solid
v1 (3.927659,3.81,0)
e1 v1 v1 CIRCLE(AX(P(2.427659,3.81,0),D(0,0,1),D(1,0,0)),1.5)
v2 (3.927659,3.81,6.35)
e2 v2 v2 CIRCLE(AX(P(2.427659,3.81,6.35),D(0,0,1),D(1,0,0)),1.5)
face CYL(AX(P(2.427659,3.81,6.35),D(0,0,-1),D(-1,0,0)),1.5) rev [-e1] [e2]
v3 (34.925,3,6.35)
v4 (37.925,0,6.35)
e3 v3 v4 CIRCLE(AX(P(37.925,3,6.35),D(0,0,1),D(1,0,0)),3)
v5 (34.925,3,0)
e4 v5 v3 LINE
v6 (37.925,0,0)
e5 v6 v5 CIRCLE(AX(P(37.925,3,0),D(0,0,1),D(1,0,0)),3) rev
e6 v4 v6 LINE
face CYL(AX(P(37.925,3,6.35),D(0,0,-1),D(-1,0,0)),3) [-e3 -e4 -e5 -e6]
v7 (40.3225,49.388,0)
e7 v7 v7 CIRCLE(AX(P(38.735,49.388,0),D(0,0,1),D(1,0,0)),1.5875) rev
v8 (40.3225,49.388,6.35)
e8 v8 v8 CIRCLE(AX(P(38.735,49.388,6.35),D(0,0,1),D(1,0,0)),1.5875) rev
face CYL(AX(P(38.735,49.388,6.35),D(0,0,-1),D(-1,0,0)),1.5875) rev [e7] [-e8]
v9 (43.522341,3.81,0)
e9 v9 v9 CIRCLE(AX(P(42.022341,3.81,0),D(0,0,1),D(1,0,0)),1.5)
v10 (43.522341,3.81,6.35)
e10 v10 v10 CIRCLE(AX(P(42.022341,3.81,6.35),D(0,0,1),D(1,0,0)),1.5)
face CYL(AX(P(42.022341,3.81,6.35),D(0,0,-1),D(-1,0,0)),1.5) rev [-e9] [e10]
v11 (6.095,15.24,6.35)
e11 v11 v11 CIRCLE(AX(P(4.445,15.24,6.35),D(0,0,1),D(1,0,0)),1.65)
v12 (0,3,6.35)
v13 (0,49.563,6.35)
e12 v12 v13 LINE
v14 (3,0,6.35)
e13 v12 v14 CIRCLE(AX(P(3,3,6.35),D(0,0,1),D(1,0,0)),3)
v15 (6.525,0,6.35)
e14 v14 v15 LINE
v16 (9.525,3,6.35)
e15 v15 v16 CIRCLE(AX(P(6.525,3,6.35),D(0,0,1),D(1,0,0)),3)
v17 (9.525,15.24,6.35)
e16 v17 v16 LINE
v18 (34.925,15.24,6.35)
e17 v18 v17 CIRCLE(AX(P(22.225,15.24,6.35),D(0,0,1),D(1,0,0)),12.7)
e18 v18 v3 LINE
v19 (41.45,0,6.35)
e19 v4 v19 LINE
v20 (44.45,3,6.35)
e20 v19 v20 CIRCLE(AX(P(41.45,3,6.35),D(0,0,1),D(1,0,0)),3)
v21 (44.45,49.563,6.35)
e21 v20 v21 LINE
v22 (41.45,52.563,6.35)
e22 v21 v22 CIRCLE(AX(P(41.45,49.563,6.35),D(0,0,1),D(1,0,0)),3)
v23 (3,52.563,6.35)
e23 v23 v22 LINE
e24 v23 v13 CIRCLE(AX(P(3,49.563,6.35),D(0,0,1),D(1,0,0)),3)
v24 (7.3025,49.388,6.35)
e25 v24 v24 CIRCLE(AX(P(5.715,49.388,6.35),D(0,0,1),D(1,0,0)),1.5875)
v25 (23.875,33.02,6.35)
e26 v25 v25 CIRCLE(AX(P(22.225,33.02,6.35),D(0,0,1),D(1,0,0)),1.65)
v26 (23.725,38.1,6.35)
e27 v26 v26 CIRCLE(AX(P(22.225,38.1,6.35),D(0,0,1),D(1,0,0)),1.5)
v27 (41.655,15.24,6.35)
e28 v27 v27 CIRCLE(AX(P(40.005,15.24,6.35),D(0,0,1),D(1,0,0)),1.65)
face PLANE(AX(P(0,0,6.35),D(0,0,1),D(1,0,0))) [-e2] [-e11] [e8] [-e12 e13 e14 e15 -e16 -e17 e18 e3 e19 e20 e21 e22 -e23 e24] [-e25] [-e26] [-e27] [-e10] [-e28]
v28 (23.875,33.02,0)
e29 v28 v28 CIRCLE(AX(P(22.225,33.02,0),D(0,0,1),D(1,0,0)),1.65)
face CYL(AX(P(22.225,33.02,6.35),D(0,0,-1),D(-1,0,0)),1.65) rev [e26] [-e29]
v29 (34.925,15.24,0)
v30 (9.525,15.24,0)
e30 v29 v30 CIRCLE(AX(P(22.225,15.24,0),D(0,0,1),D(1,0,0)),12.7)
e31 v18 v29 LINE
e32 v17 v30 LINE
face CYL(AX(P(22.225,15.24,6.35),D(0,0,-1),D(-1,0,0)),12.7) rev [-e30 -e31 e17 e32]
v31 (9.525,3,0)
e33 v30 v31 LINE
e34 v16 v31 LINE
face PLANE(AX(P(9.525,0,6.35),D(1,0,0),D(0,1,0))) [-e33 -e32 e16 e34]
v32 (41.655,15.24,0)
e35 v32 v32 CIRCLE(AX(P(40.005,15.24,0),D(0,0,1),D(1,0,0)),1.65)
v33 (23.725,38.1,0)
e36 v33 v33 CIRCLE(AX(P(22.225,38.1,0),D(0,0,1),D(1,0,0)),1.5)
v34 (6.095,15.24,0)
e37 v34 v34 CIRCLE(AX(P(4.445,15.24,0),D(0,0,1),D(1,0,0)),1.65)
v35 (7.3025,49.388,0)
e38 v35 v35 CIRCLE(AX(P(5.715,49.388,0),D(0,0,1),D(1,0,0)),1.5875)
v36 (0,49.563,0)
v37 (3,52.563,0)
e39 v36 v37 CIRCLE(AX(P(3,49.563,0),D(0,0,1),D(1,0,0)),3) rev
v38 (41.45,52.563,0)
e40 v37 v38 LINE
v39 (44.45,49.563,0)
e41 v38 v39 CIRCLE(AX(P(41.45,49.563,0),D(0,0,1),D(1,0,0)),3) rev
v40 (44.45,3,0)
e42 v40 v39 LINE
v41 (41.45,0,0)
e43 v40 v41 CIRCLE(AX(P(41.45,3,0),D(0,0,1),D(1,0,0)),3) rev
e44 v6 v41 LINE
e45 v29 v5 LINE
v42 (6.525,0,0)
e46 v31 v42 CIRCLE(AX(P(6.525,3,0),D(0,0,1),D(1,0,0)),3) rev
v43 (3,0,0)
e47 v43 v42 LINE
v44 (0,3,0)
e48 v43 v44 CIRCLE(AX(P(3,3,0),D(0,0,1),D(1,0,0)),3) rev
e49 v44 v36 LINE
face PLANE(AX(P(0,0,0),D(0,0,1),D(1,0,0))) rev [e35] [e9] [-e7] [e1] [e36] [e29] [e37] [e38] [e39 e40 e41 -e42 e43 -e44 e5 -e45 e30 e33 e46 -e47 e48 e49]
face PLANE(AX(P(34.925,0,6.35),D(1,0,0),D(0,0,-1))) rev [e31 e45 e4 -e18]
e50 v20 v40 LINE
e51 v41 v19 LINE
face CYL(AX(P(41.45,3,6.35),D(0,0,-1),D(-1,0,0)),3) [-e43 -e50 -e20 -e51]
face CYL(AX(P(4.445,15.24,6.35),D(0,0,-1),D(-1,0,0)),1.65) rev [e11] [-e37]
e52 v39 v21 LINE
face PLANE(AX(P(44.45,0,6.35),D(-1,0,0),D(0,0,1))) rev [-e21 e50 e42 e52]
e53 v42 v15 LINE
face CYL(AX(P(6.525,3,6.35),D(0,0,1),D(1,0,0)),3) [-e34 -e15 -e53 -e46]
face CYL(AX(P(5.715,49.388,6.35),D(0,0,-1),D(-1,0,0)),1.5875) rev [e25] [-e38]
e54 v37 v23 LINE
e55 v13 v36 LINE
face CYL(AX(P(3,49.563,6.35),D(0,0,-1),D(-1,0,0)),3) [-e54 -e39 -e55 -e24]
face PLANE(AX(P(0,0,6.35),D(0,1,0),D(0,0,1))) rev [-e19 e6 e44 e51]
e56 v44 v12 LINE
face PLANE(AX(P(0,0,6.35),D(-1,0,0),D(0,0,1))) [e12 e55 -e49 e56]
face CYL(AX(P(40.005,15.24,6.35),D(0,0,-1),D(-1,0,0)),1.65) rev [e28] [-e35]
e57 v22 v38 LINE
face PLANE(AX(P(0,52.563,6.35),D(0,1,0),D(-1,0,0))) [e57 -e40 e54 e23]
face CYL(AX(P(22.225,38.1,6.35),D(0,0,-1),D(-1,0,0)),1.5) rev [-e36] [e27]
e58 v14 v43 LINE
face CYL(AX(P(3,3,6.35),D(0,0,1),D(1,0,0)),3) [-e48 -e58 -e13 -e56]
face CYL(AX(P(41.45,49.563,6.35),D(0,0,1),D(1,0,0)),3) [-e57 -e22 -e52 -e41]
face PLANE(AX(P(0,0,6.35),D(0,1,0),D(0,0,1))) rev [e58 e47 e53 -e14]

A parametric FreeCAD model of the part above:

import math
import FreeCAD as App
import Part
import Sketcher

V = App.Vector
Q = App.Units.Quantity


def edges_at(feature, points):
    """Names of the edges that pass closest to the given points."""
    edges = feature.Shape.Edges
    near = lambda p: min(range(len(edges)), key=lambda i: edges[i].distToShape(Part.Vertex(*p))[0])
    return sorted({f"Edge{near(p) + 1}" for p in points})

doc = App.newDocument("Part")
body = doc.addObject("PartDesign::Body", "Body")

sketch1 = body.newObject("Sketcher::SketchObject", "Sketch")
sketch1.AttachmentSupport = (doc.getObject("XY_Plane"), [""])
sketch1.MapMode = "FlatFace"
sketch1.addGeometry(Part.LineSegment(V(0, 0, 0), V(9.525, 0, 0)), False)
sketch1.addGeometry(Part.LineSegment(V(9.525, 0, 0), V(9.525, 15.24, 0)), False)
sketch1.addGeometry(Part.ArcOfCircle(Part.Circle(V(22.225, 15.24, 0), V(0, 0, 1), 12.7), math.radians(0), math.radians(180)), False)
sketch1.addGeometry(Part.LineSegment(V(34.925, 15.24, 0), V(34.925, 0, 0)), False)
sketch1.addGeometry(Part.LineSegment(V(34.925, 0, 0), V(44.45, 0, 0)), False)
sketch1.addGeometry(Part.LineSegment(V(44.45, 0, 0), V(44.45, 52.563, 0)), False)
sketch1.addGeometry(Part.LineSegment(V(44.45, 52.563, 0), V(0, 52.563, 0)), False)
sketch1.addGeometry(Part.LineSegment(V(0, 52.563, 0), V(0, 0, 0)), False)
sketch1.addGeometry(Part.Circle(V(2.427659, 3.81, 0), V(0, 0, 1), 1.5), False)
sketch1.addGeometry(Part.Circle(V(4.445, 15.24, 0), V(0, 0, 1), 1.65), False)
sketch1.addGeometry(Part.Circle(V(42.022341, 3.81, 0), V(0, 0, 1), 1.5), False)
sketch1.addGeometry(Part.Circle(V(40.005, 15.24, 0), V(0, 0, 1), 1.65), False)
sketch1.addGeometry(Part.Circle(V(5.715, 49.388, 0), V(0, 0, 1), 1.5875), False)
sketch1.addGeometry(Part.Circle(V(22.225, 33.02, 0), V(0, 0, 1), 1.65), False)
sketch1.addGeometry(Part.Circle(V(22.225, 38.1, 0), V(0, 0, 1), 1.5), False)
sketch1.addGeometry(Part.Circle(V(38.735, 49.388, 0), V(0, 0, 1), 1.5875), False)
sketch1.addConstraint(Sketcher.Constraint("Coincident", 0, 2, 1, 1))
sketch1.addConstraint(Sketcher.Constraint("Tangent", 1, 2, 2, 2))
sketch1.addConstraint(Sketcher.Constraint("Tangent", 2, 1, 3, 1))
sketch1.addConstraint(Sketcher.Constraint("Coincident", 3, 2, 4, 1))
sketch1.addConstraint(Sketcher.Constraint("Coincident", 4, 2, 5, 1))
sketch1.addConstraint(Sketcher.Constraint("Coincident", 5, 2, 6, 1))
sketch1.addConstraint(Sketcher.Constraint("Coincident", 6, 2, 7, 1))
sketch1.addConstraint(Sketcher.Constraint("Coincident", 7, 2, 0, 1))
sketch1.addConstraint(Sketcher.Constraint("Horizontal", 0))
sketch1.addConstraint(Sketcher.Constraint("Vertical", 1))
sketch1.addConstraint(Sketcher.Constraint("Vertical", 3))
sketch1.addConstraint(Sketcher.Constraint("Horizontal", 4))
sketch1.addConstraint(Sketcher.Constraint("Vertical", 5))
sketch1.addConstraint(Sketcher.Constraint("Horizontal", 6))
sketch1.addConstraint(Sketcher.Constraint("Vertical", 7))
sketch1.addConstraint(Sketcher.Constraint("Coincident", 7, 2, -1, 1))
sketch1.addConstraint(Sketcher.Constraint("Equal", 8, 10))
sketch1.addConstraint(Sketcher.Constraint("Equal", 9, 11))
sketch1.addConstraint(Sketcher.Constraint("Equal", 11, 13))
sketch1.addConstraint(Sketcher.Constraint("Equal", 10, 14))
sketch1.addConstraint(Sketcher.Constraint("Equal", 12, 15))
sketch1.addConstraint(Sketcher.Constraint("PointOnObject", 3, 2, -1))
sketch1.addConstraint(Sketcher.Constraint("Horizontal", 2, 3, 9, 3))
sketch1.addConstraint(Sketcher.Constraint("Horizontal", 8, 3, 10, 3))
sketch1.addConstraint(Sketcher.Constraint("Horizontal", 9, 3, 11, 3))
sketch1.addConstraint(Sketcher.Constraint("Horizontal", 12, 3, 15, 3))
sketch1.addConstraint(Sketcher.Constraint("Vertical", 2, 3, 13, 3))
sketch1.addConstraint(Sketcher.Constraint("Vertical", 13, 3, 14, 3))
sketch1.addConstraint(Sketcher.Constraint("Equal", 0, 4))
sketch1.addConstraint(Sketcher.Constraint("Radius", 2, Q("0.5 in")))
sketch1.addConstraint(Sketcher.Constraint("Diameter", 12, Q("0.125 in")))
sketch1.addConstraint(Sketcher.Constraint("DistanceY", 1, 1, 1, 2, Q("0.6 in")))
sketch1.addConstraint(Sketcher.Constraint("DistanceX", 6, 2, 6, 1, Q("1.75 in")))
sketch1.addConstraint(Sketcher.Constraint("DistanceY", -1, 1, 13, 3, Q("1.3 in")))
sketch1.addConstraint(Sketcher.Constraint("DistanceY", -1, 1, 14, 3, Q("1.5 in")))
sketch1.addConstraint(Sketcher.Constraint("DistanceX", 9, 3, 2, 3, Q("0.7 in")))
sketch1.addConstraint(Sketcher.Constraint("DistanceX", 2, 3, 11, 3, Q("0.7 in")))
sketch1.addConstraint(Sketcher.Constraint("DistanceX", 12, 3, 15, 3, Q("1.3 in")))
sketch1.addConstraint(Sketcher.Constraint("Diameter", 8, Q("3 mm")))
sketch1.addConstraint(Sketcher.Constraint("Diameter", 9, Q("3.3 mm")))
sketch1.addConstraint(Sketcher.Constraint("DistanceY", -1, 1, 8, 3, Q("0.15 in")))
sketch1.addConstraint(Sketcher.Constraint("DistanceX", 9, 3, 12, 3, Q("0.05 in")))
sketch1.addConstraint(Sketcher.Constraint("DistanceY", 15, 3, 5, 2, Q("0.125 in")))
sketch1.addConstraint(Sketcher.Constraint("DistanceY", 5, 1, 5, 2, Q("52.563 mm")))
sketch1.addConstraint(Sketcher.Constraint("DistanceX", -1, 1, 8, 3, Q("2.427659 mm")))
sketch1.addConstraint(Sketcher.Constraint("DistanceX", -1, 1, 10, 3, Q("42.022341 mm")))
pad1 = body.newObject("PartDesign::Pad", "Pad")
pad1.Profile = sketch1
pad1.Length = Q("0.25 in")
doc.recompute()

fillet = body.newObject("PartDesign::Fillet", "Fillet")
fillet.Base = (pad1, edges_at(pad1, [
    (9.525, 0, 3.175),
    (0, 0, 3.175),
    (0, 52.563, 3.175),
    (44.45, 52.563, 3.175),
    (44.45, 0, 3.175),
    (34.925, 0, 3.175),
]))
fillet.Radius = 3

doc.recompute()
